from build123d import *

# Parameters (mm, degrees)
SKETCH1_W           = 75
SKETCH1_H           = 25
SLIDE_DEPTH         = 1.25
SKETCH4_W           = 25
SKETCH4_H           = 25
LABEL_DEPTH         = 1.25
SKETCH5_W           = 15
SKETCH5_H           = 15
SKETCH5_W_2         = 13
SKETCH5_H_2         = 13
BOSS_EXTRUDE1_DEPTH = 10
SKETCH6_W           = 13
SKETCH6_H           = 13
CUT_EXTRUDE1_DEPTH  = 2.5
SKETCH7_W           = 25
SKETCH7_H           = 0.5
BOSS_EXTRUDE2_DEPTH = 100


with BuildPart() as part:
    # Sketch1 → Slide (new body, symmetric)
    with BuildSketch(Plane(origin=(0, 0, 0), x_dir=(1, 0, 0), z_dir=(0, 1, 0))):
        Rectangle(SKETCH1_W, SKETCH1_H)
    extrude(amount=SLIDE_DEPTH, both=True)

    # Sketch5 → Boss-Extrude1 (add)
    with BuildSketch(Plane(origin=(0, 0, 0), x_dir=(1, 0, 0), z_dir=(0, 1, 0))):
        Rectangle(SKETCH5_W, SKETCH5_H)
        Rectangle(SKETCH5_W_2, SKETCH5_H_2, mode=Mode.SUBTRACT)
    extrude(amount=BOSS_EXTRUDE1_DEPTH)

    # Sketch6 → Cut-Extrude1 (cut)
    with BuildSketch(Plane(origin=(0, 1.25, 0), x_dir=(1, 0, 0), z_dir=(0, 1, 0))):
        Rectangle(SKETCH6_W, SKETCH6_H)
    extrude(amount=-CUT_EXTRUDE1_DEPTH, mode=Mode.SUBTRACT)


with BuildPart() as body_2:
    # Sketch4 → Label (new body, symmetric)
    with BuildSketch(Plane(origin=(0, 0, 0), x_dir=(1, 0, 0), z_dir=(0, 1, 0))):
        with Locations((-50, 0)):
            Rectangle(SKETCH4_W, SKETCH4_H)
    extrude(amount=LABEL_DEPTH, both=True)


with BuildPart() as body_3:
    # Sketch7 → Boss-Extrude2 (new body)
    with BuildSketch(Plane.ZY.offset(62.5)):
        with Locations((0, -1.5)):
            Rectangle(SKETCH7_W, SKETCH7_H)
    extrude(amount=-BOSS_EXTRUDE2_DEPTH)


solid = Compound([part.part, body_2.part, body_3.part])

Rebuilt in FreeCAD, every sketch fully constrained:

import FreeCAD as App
import Part
import Sketcher

V = App.Vector
Q = App.Units.Quantity


def add_polygon(sketch, points):
    """Adds a closed chain of lines whose ends are joined by coincident constraints."""
    first, n = sketch.GeometryCount, len(points)
    for a, b in zip(points, points[1:] + points[:1]):
        sketch.addGeometry(Part.LineSegment(App.Vector(*a, 0), App.Vector(*b, 0)), False)
    for i in range(n):
        sketch.addConstraint(Sketcher.Constraint("Coincident", first + i, 2, first + (i + 1) % n, 1))

doc = App.newDocument("Part")
body = doc.addObject("PartDesign::Body", "Body")

sketch1 = body.newObject("Sketcher::SketchObject", "Sketch")
sketch1.AttachmentSupport = (doc.getObject("XZ_Plane"), [""])
sketch1.MapMode = "FlatFace"
add_polygon(sketch1, [(-37.5, -12.5), (-37.5, 12.5), (37.5, 12.5), (37.5, -12.5)])
sketch1.addConstraint(Sketcher.Constraint("Vertical", 0))
sketch1.addConstraint(Sketcher.Constraint("Horizontal", 1))
sketch1.addConstraint(Sketcher.Constraint("Vertical", 2))
sketch1.addConstraint(Sketcher.Constraint("Horizontal", 3))
sketch1.addConstraint(Sketcher.Constraint("Symmetric", 0, 2, 2, 2, -1, 1))
sketch1.addConstraint(Sketcher.Constraint("DistanceX", 1, 1, 1, 2, Q("75 mm")))
sketch1.addConstraint(Sketcher.Constraint("DistanceY", 0, 1, 0, 2, Q("25 mm")))
pad1 = body.newObject("PartDesign::Pad", "Pad")
pad1.Profile = sketch1
pad1.Length = 2.5
pad1.Midplane = True

sketch2 = body.newObject("Sketcher::SketchObject", "Sketch001")
sketch2.AttachmentSupport = (doc.getObject("XZ_Plane"), [""])
sketch2.MapMode = "FlatFace"
add_polygon(sketch2, [(-7.5, -7.5), (-7.5, 7.5), (7.5, 7.5), (7.5, -7.5)])
add_polygon(sketch2, [(6.5, 6.5), (-6.5, 6.5), (-6.5, -6.5), (6.5, -6.5)])
sketch2.addConstraint(Sketcher.Constraint("Vertical", 0))
sketch2.addConstraint(Sketcher.Constraint("Horizontal", 1))
sketch2.addConstraint(Sketcher.Constraint("Vertical", 2))
sketch2.addConstraint(Sketcher.Constraint("Horizontal", 3))
sketch2.addConstraint(Sketcher.Constraint("Horizontal", 4))
sketch2.addConstraint(Sketcher.Constraint("Vertical", 5))
sketch2.addConstraint(Sketcher.Constraint("Horizontal", 6))
sketch2.addConstraint(Sketcher.Constraint("Vertical", 7))
sketch2.addConstraint(Sketcher.Constraint("Symmetric", 0, 2, 2, 2, -1, 1))
sketch2.addConstraint(Sketcher.Constraint("Symmetric", 4, 2, 6, 2, -1, 1))
sketch2.addConstraint(Sketcher.Constraint("Equal", 3, 0))
sketch2.addConstraint(Sketcher.Constraint("Equal", 6, 5))
sketch2.addConstraint(Sketcher.Constraint("DistanceX", 1, 1, 1, 2, Q("15 mm")))
sketch2.addConstraint(Sketcher.Constraint("DistanceX", 4, 2, 4, 1, Q("13 mm")))
pad2 = body.newObject("PartDesign::Pad", "Pad001")
pad2.Profile = sketch2
pad2.Length = 10
pad2.Reversed = True

sketch3 = body.newObject("Sketcher::SketchObject", "Sketch002")
sketch3.AttachmentSupport = (doc.getObject("XZ_Plane"), [""])
sketch3.MapMode = "FlatFace"
sketch3.AttachmentOffset = App.Placement(V(0, 0, -1.25), App.Rotation())
add_polygon(sketch3, [(-6.5, -6.5), (-6.5, 6.5), (6.5, 6.5), (6.5, -6.5)])
sketch3.addConstraint(Sketcher.Constraint("Vertical", 0))
sketch3.addConstraint(Sketcher.Constraint("Horizontal", 1))
sketch3.addConstraint(Sketcher.Constraint("Vertical", 2))
sketch3.addConstraint(Sketcher.Constraint("Horizontal", 3))
sketch3.addConstraint(Sketcher.Constraint("Symmetric", 0, 2, 2, 2, -1, 1))
sketch3.addConstraint(Sketcher.Constraint("Equal", 3, 0))
sketch3.addConstraint(Sketcher.Constraint("DistanceX", 1, 1, 1, 2, Q("13 mm")))
pocket1 = body.newObject("PartDesign::Pocket", "Pocket")
pocket1.Profile = sketch3
pocket1.Length = 2.5
pocket1.Reversed = True
body2 = doc.addObject("PartDesign::Body", "Body001")

sketch4 = body2.newObject("Sketcher::SketchObject", "Sketch003")
sketch4.AttachmentSupport = (doc.getObject("XZ_Plane001"), [""])
sketch4.MapMode = "FlatFace"
add_polygon(sketch4, [(-62.5, -12.5), (-62.5, 12.5), (-37.5, 12.5), (-37.5, -12.5)])
sketch4.addConstraint(Sketcher.Constraint("Vertical", 0))
sketch4.addConstraint(Sketcher.Constraint("Horizontal", 1))
sketch4.addConstraint(Sketcher.Constraint("Vertical", 2))
sketch4.addConstraint(Sketcher.Constraint("Horizontal", 3))
sketch4.addConstraint(Sketcher.Constraint("Equal", 3, 0))
sketch4.addConstraint(Sketcher.Constraint("DistanceX", 1, 1, 1, 2, Q("25 mm")))
sketch4.addConstraint(Sketcher.Constraint("DistanceX", 0, 2, -1, 1, Q("62.5 mm")))
sketch4.addConstraint(Sketcher.Constraint("DistanceY", -1, 1, 0, 2, Q("12.5 mm")))
pad3 = body2.newObject("PartDesign::Pad", "Pad002")
pad3.Profile = sketch4
pad3.Length = 2.5
pad3.Midplane = True
body3 = doc.addObject("PartDesign::Body", "Body002")

sketch5 = body3.newObject("Sketcher::SketchObject", "Sketch004")
sketch5.AttachmentSupport = (doc.getObject("YZ_Plane002"), [""])
sketch5.MapMode = "FlatFace"
sketch5.AttachmentOffset = App.Placement(V(0, 0, -62.5), App.Rotation())
add_polygon(sketch5, [(-1.25, -12.5), (-1.75, -12.5), (-1.75, 12.5), (-1.25, 12.5)])
sketch5.addConstraint(Sketcher.Constraint("Horizontal", 0))
sketch5.addConstraint(Sketcher.Constraint("Vertical", 1))
sketch5.addConstraint(Sketcher.Constraint("Horizontal", 2))
sketch5.addConstraint(Sketcher.Constraint("Vertical", 3))
sketch5.addConstraint(Sketcher.Constraint("DistanceY", 1, 1, 1, 2, Q("25 mm")))
sketch5.addConstraint(Sketcher.Constraint("DistanceX", 0, 2, 0, 1, Q("0.5 mm")))
sketch5.addConstraint(Sketcher.Constraint("DistanceY", 0, 2, -1, 1, Q("12.5 mm")))
sketch5.addConstraint(Sketcher.Constraint("DistanceX", 0, 2, -1, 1, Q("1.75 mm")))
pad4 = body3.newObject("PartDesign::Pad", "Pad003")
pad4.Profile = sketch5
pad4.Length = 100

doc.recompute()
